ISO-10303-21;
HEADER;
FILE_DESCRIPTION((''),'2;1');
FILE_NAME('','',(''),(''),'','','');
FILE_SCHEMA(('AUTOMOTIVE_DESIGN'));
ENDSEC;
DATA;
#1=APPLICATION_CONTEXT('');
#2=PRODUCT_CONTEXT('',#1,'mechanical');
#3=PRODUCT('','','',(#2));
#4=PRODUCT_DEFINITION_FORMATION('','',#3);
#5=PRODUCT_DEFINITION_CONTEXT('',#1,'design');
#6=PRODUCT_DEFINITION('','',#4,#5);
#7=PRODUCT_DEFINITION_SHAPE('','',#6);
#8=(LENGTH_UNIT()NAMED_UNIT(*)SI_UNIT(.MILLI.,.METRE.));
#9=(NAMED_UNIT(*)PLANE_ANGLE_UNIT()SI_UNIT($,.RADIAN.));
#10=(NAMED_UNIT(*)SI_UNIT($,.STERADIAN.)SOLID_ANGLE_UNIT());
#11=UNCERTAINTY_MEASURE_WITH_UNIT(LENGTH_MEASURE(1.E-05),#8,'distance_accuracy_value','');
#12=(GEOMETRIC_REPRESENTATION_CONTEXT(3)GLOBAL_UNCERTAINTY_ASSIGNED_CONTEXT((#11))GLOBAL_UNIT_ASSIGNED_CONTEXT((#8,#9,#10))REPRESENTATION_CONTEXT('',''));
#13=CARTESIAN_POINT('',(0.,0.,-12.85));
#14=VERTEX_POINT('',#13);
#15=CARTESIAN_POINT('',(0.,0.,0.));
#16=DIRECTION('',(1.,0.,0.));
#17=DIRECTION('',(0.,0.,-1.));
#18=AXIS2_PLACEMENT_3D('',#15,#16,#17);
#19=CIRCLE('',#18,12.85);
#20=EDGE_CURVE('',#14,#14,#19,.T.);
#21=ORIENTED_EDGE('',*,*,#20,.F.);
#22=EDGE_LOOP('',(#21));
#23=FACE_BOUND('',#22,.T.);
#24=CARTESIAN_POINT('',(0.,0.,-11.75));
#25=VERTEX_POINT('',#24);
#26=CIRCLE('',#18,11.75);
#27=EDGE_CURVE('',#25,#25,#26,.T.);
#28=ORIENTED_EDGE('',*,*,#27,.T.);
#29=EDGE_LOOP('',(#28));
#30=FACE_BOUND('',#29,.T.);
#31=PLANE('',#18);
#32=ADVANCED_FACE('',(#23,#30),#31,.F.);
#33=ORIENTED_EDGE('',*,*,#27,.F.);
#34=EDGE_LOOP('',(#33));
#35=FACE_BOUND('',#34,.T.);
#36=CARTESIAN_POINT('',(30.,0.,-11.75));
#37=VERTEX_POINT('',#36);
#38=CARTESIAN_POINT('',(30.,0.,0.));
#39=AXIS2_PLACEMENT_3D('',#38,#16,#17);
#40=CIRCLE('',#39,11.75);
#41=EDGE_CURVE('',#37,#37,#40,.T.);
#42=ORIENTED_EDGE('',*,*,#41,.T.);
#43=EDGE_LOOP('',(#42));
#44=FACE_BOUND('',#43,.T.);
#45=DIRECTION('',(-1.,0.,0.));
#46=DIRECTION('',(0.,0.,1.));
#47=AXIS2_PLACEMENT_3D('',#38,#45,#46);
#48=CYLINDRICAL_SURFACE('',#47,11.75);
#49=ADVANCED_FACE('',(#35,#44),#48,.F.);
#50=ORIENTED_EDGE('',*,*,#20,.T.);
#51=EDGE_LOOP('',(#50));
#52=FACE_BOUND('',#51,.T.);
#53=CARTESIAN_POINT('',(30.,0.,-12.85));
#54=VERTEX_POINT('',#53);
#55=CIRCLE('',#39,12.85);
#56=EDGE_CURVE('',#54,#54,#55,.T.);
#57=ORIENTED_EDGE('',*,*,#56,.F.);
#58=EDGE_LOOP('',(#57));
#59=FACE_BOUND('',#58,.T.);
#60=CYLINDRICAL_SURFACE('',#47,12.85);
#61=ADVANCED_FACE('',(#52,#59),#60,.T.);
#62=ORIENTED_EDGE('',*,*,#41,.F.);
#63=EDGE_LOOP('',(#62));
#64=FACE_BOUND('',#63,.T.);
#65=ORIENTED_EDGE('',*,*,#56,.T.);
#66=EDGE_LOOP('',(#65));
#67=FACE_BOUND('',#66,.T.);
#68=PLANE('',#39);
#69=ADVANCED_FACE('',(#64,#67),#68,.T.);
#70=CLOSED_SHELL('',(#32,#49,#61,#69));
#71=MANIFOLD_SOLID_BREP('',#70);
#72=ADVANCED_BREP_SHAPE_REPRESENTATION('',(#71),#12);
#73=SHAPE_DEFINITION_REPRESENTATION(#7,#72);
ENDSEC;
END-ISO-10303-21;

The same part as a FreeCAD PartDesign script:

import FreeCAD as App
import Part
import Sketcher
from FreeCAD import Vector

doc = App.newDocument("Part")
body = doc.addObject("PartDesign::Body", "Body")

# Sketch on YZ plane
sketch1 = body.newObject("Sketcher::SketchObject", "Sketch")
sketch1.AttachmentSupport = (doc.getObject("YZ_Plane"), [""])
sketch1.MapMode = "FlatFace"
sketch1.addGeometry([
    Part.Circle(Vector(0, 0, 0), Vector(0, 0, 1), 13),
    Part.Circle(Vector(0, 0, 0), Vector(0, 0, 1), 12),
], False)
sketch1.addConstraint([
    Sketcher.Constraint("Coincident", 0, 3, -1, 1),
    Sketcher.Constraint("Coincident", 1, 3, -1, 1),
    Sketcher.Constraint("Diameter", 0, 25.7),
    Sketcher.Constraint("Diameter", 1, 23.5),
])
pad1 = body.newObject("PartDesign::Pad", "Pad")
pad1.Profile = sketch1
pad1.Length = 30

doc.recompute()
